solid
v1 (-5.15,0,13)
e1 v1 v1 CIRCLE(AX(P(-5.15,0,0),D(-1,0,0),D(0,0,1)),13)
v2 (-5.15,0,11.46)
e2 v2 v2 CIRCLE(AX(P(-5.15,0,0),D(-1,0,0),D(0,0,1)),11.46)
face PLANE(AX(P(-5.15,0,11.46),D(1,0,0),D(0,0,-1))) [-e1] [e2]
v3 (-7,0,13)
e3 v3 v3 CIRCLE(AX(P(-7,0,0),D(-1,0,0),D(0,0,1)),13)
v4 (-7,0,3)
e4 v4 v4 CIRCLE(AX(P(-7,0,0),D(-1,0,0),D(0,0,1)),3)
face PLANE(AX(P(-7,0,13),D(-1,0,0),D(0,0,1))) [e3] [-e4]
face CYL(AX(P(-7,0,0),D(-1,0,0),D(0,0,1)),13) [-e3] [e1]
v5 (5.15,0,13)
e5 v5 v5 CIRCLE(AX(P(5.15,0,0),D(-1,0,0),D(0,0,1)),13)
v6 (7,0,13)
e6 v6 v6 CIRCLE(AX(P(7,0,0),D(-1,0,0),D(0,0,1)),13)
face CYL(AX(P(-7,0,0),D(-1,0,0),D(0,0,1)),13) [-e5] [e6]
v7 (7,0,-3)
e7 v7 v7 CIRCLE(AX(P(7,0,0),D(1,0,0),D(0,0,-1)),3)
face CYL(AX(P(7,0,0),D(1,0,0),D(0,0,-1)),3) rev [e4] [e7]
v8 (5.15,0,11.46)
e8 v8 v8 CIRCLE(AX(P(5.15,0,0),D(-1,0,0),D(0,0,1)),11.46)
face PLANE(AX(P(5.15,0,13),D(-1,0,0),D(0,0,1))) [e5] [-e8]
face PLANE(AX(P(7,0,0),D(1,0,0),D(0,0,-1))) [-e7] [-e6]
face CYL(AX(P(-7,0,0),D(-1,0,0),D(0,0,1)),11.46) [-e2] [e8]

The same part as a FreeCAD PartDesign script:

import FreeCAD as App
import Part
import Sketcher
from FreeCAD import Vector
Q = App.Units.Quantity

doc = App.newDocument("Part")
body = doc.addObject("PartDesign::Body", "Body")

# Sketch on XZ plane
sketch1 = body.newObject("Sketcher::SketchObject", "Sketch")
sketch1.AttachmentSupport = (doc.getObject("XZ_Plane"), [""])
sketch1.MapMode = "FlatFace"
sketch1.addGeometry([
    Part.LineSegment(Vector(-5.15, 11.46, 0), Vector(5.15, 11.46, 0)),  # 0
    Part.LineSegment(Vector(5.15, 11.46, 0), Vector(5.15, 13, 0)),  # 1
    Part.LineSegment(Vector(5.15, 13, 0), Vector(7, 13, 0)),  # 2
    Part.LineSegment(Vector(7, 13, 0), Vector(7, 0, 0)),  # 3
    Part.LineSegment(Vector(7, 0, 0), Vector(-7, 0, 0)),  # 4
    Part.LineSegment(Vector(-7, 0, 0), Vector(-7, 13, 0)),  # 5
    Part.LineSegment(Vector(-7, 13, 0), Vector(-5.15, 13, 0)),  # 6
    Part.LineSegment(Vector(-5.15, 13, 0), Vector(-5.15, 11.46, 0)),  # 7
], False)
sketch1.addConstraint([
    Sketcher.Constraint("Coincident", 0, 2, 1, 1),
    Sketcher.Constraint("Coincident", 1, 2, 2, 1),
    Sketcher.Constraint("Coincident", 2, 2, 3, 1),
    Sketcher.Constraint("Coincident", 3, 2, 4, 1),
    Sketcher.Constraint("Coincident", 4, 2, 5, 1),
    Sketcher.Constraint("Coincident", 5, 2, 6, 1),
    Sketcher.Constraint("Coincident", 6, 2, 7, 1),
    Sketcher.Constraint("Coincident", 7, 2, 0, 1),
    Sketcher.Constraint("Horizontal", 0),
    Sketcher.Constraint("Vertical", 1),
    Sketcher.Constraint("Horizontal", 2),
    Sketcher.Constraint("Vertical", 3),
    Sketcher.Constraint("Horizontal", 4),
    Sketcher.Constraint("Vertical", 5),
    Sketcher.Constraint("Horizontal", 6),
    Sketcher.Constraint("Vertical", 7),
    Sketcher.Constraint("Symmetric", 3, 2, 4, 2, -1, 1),
    Sketcher.Constraint("Symmetric", 1, 2, 6, 2, -2),
    Sketcher.Constraint("DistanceX", 4, 2, 4, 1, Q("14 mm")),
    Sketcher.Constraint("DistanceY", 3, 2, 3, 1, Q("13 mm")),
    Sketcher.Constraint("DistanceX", 0, 1, 0, 2, Q("10.3 mm")),
    Sketcher.Constraint("DistanceY", 1, 1, 1, 2, Q("1.54 mm")),
])
revolution = body.newObject("PartDesign::Revolution", "Revolution")
revolution.Profile = sketch1
revolution.ReferenceAxis = (sketch1, ["H_Axis"])
revolution.Angle = 360

# Sketch on YZ plane
sketch2 = body.newObject("Sketcher::SketchObject", "Sketch001")
sketch2.AttachmentSupport = (doc.getObject("YZ_Plane"), [""])
sketch2.MapMode = "FlatFace"
sketch2.AttachmentOffset = App.Placement(Vector(0, 0, 7), App.Rotation())
sketch2.addGeometry(Part.Circle(Vector(0, 0, 0), Vector(0, 0, 1), 3), False)
sketch2.addConstraint([
    Sketcher.Constraint("Coincident", 0, 3, -1, 1),
    Sketcher.Constraint("Diameter", 0, Q("6 mm")),
])
doc.recompute()
hole = body.newObject("PartDesign::Hole", "Hole")
hole.Profile = sketch2
hole.ThreadType = "None"
hole.Diameter = 6
hole.DepthType = "Dimension"
hole.Depth = 24
hole.DrillPoint = "Angled"
hole.DrillPointAngle = 118

doc.recompute()
